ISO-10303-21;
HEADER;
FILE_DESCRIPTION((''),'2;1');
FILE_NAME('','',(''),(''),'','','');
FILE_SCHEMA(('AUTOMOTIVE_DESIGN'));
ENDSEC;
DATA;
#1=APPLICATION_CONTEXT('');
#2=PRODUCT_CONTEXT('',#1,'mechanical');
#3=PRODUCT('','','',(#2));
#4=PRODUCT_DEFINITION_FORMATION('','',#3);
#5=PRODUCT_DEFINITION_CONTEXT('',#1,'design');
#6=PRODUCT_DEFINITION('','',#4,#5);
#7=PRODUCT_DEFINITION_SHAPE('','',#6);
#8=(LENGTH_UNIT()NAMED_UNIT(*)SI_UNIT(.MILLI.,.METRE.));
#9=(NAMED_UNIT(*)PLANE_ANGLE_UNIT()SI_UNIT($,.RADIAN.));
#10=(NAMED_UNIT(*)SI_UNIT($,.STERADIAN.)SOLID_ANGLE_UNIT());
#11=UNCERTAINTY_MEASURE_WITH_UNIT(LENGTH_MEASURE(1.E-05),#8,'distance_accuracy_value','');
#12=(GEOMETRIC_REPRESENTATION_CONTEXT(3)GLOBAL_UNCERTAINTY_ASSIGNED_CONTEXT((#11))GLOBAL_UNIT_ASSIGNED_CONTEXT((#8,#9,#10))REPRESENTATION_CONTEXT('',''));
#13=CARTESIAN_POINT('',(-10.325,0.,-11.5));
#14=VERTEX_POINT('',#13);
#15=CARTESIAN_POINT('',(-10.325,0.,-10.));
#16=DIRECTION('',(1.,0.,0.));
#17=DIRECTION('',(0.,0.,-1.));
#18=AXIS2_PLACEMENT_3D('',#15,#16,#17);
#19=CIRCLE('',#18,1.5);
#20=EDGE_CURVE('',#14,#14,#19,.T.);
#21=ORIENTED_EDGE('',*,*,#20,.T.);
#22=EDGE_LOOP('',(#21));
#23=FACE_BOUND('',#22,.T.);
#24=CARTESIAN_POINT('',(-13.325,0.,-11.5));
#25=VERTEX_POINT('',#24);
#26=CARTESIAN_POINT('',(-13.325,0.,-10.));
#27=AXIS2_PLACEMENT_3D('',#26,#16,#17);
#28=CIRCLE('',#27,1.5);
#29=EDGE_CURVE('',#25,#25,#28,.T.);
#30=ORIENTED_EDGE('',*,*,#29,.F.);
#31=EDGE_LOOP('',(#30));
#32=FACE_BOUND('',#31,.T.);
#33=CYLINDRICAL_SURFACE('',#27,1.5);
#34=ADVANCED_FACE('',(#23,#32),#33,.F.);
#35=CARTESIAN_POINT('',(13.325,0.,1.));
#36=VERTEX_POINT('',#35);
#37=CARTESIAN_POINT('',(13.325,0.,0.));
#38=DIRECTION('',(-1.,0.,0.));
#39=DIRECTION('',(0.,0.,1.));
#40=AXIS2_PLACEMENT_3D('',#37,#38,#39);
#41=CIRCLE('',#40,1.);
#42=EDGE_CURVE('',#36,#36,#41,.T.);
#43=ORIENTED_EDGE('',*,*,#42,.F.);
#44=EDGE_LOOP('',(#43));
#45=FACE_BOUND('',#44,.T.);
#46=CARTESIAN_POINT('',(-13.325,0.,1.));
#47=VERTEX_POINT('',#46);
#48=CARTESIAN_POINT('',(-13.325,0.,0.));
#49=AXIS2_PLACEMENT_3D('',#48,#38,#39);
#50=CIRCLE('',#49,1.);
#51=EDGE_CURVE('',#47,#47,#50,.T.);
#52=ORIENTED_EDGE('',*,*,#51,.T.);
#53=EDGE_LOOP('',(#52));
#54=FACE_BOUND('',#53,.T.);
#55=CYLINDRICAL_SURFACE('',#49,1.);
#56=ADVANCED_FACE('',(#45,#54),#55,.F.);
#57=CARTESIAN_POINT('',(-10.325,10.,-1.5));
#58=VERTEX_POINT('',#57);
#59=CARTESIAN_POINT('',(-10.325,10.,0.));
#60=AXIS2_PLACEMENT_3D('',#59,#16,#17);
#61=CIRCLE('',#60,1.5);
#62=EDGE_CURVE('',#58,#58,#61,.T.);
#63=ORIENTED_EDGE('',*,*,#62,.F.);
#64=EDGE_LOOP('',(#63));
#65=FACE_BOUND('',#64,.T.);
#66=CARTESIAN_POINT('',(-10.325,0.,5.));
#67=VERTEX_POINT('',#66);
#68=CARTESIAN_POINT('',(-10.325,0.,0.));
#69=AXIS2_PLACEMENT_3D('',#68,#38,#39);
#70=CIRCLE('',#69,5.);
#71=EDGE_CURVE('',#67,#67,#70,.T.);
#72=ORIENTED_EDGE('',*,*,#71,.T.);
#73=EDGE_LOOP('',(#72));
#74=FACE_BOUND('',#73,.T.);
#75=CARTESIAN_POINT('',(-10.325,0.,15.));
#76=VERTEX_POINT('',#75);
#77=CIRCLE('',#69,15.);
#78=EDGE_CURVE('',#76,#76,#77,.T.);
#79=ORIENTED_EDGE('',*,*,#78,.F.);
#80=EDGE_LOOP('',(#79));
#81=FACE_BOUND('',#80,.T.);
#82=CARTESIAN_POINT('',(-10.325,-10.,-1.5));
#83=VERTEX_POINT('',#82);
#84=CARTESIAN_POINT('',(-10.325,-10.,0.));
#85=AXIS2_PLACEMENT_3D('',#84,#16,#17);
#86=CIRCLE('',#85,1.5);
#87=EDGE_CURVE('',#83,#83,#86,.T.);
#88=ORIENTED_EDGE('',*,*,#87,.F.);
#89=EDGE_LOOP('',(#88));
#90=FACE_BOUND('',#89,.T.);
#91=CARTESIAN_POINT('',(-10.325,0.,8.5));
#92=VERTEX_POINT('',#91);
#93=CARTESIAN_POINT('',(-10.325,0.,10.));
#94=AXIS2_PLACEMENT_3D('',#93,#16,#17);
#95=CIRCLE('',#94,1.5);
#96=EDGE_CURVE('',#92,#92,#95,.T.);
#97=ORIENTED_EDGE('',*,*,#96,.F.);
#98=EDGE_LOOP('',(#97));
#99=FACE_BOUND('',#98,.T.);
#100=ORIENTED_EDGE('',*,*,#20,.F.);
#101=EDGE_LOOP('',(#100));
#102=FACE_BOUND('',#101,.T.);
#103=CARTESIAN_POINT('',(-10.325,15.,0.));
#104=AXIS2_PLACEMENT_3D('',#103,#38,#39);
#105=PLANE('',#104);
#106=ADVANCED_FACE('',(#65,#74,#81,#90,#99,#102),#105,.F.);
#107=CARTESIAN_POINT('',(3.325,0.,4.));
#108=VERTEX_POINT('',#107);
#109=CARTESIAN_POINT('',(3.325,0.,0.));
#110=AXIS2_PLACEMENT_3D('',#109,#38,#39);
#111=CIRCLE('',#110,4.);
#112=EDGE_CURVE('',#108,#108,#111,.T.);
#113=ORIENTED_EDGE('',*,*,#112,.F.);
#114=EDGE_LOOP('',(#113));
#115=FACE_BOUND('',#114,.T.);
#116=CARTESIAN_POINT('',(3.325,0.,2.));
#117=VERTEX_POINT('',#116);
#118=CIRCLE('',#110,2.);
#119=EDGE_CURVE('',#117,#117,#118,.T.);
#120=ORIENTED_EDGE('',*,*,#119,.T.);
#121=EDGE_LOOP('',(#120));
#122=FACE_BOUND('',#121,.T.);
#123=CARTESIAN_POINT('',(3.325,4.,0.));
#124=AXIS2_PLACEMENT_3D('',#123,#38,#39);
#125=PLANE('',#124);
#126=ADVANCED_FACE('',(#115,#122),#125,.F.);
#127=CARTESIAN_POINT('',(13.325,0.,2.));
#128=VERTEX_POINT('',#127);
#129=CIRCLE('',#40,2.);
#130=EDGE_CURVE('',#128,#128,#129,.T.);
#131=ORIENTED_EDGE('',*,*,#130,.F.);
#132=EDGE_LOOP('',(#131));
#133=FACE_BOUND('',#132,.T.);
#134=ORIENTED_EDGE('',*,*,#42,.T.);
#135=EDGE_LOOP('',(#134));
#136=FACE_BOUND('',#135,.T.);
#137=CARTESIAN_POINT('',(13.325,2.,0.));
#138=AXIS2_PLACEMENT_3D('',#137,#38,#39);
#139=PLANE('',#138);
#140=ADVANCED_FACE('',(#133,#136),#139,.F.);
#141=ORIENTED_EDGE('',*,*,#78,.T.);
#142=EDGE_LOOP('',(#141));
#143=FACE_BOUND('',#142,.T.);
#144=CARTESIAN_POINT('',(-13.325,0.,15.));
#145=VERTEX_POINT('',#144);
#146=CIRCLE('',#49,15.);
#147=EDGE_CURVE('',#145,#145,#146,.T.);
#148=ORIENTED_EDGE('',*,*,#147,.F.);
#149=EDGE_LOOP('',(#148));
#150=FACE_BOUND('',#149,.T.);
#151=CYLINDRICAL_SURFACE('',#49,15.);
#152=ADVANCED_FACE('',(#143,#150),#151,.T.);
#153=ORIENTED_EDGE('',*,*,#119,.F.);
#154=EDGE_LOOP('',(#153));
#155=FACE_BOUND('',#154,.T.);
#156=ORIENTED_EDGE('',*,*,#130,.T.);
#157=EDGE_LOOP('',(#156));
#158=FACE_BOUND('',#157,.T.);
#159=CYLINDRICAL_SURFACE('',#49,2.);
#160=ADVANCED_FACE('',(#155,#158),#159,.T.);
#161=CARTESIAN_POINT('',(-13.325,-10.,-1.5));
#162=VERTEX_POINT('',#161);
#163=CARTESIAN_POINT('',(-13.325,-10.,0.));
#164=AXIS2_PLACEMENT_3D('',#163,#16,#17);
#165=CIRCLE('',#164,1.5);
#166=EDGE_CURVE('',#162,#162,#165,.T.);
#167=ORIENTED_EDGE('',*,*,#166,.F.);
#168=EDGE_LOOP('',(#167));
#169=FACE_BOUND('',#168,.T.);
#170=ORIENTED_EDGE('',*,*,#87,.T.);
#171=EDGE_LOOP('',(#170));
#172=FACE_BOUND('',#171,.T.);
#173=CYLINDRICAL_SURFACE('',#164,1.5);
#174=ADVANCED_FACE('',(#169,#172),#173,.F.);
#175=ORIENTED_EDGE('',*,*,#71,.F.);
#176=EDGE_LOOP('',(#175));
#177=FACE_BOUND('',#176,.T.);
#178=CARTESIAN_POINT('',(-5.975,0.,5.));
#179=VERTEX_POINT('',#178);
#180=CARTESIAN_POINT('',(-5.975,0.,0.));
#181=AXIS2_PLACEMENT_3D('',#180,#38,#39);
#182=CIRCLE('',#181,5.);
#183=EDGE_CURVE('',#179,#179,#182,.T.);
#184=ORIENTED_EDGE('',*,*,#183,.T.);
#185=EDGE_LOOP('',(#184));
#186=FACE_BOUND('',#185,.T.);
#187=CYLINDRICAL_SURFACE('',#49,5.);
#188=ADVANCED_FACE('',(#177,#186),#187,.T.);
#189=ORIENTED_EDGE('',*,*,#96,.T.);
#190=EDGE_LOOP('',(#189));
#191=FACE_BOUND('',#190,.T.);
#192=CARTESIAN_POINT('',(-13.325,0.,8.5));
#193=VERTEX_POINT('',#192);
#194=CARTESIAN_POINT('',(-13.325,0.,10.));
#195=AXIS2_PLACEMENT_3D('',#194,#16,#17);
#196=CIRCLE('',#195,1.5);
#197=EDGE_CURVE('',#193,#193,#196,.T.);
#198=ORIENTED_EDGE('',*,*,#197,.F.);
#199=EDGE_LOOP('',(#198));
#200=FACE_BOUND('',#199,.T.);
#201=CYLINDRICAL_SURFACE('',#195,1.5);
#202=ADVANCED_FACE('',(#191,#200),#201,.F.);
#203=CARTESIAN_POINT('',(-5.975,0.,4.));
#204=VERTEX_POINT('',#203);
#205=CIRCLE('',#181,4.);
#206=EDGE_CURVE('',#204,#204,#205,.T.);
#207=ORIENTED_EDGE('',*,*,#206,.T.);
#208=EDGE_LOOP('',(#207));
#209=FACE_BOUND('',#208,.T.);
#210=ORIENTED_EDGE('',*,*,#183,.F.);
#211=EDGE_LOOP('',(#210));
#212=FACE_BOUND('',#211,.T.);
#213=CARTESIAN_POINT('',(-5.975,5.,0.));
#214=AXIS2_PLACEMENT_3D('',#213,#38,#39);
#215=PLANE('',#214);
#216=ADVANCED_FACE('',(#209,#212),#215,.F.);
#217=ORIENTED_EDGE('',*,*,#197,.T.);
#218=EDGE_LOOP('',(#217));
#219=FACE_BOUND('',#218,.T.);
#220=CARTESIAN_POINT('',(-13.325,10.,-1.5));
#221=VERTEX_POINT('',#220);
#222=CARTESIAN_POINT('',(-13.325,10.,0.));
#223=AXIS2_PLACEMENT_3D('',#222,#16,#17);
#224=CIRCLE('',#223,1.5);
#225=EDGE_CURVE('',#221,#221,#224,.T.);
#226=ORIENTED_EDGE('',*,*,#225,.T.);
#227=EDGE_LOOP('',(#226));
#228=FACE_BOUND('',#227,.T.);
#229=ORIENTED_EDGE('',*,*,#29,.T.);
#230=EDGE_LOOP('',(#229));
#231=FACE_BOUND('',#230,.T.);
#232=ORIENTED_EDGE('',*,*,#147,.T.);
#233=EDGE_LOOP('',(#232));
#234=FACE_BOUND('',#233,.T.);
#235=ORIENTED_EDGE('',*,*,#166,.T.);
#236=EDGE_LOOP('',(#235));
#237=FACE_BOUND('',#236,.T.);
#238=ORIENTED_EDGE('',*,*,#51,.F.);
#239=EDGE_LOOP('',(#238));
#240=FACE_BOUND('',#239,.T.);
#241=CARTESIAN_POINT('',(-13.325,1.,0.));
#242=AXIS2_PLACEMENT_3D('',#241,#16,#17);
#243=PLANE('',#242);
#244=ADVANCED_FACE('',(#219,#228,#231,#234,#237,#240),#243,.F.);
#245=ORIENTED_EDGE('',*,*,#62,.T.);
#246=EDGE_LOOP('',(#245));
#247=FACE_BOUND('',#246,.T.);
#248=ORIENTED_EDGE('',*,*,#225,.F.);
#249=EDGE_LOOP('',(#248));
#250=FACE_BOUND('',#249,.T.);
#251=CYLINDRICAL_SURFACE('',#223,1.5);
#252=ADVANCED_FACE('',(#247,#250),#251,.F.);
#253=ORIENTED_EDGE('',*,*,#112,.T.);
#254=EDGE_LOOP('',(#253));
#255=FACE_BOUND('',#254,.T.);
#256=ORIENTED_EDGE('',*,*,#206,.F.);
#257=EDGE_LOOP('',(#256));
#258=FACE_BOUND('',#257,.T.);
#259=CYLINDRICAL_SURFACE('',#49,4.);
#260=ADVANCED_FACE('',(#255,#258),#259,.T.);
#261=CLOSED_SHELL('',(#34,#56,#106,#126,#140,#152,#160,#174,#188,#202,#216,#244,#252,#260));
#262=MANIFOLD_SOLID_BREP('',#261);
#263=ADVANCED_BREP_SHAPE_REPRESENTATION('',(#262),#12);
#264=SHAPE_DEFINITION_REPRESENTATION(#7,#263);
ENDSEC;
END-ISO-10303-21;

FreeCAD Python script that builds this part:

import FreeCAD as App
import Part
import Sketcher
Q = App.Units.Quantity


def add_polygon(sketch, points):
    """Adds a closed chain of lines whose ends are joined by coincident constraints."""
    first, n = sketch.GeometryCount, len(points)
    for a, b in zip(points, points[1:] + points[:1]):
        sketch.addGeometry(Part.LineSegment(App.Vector(*a, 0), App.Vector(*b, 0)), False)
    for i in range(n):
        sketch.addConstraint(Sketcher.Constraint("Coincident", first + i, 2, first + (i + 1) % n, 1))

doc = App.newDocument("Part")
body = doc.addObject("PartDesign::Body", "Body")

sketch1 = body.newObject("Sketcher::SketchObject", "Sketch")
sketch1.AttachmentSupport = (doc.getObject("XY_Plane"), [""])
sketch1.MapMode = "FlatFace"
add_polygon(sketch1, [(-13.3, 15), (-13.3, 1), (13.3, 1), (13.3, 2), (3.3, 2), (3.3, 4), (-6, 4), (-6, 5), (-10.3, 5), (-10.3, 15)])
sketch1.addConstraint(Sketcher.Constraint("Vertical", 0))
sketch1.addConstraint(Sketcher.Constraint("Horizontal", 1))
sketch1.addConstraint(Sketcher.Constraint("Vertical", 2))
sketch1.addConstraint(Sketcher.Constraint("Horizontal", 3))
sketch1.addConstraint(Sketcher.Constraint("Vertical", 4))
sketch1.addConstraint(Sketcher.Constraint("Horizontal", 5))
sketch1.addConstraint(Sketcher.Constraint("Vertical", 6))
sketch1.addConstraint(Sketcher.Constraint("Horizontal", 7))
sketch1.addConstraint(Sketcher.Constraint("Vertical", 8))
sketch1.addConstraint(Sketcher.Constraint("Horizontal", 9))
sketch1.addConstraint(Sketcher.Constraint("Equal", 2, 6))
sketch1.addConstraint(Sketcher.Constraint("Equal", 3, 8))
sketch1.addConstraint(Sketcher.Constraint("DistanceX", 3, 2, 3, 1, Q("10 mm")))
sketch1.addConstraint(Sketcher.Constraint("DistanceX", 9, 2, 9, 1, Q("3 mm")))
sketch1.addConstraint(Sketcher.Constraint("DistanceY", 0, 2, 0, 1, Q("14 mm")))
sketch1.addConstraint(Sketcher.Constraint("DistanceY", 2, 1, 2, 2, Q("1 mm")))
sketch1.addConstraint(Sketcher.Constraint("DistanceX", 5, 2, 5, 1, Q("9.3 mm")))
sketch1.addConstraint(Sketcher.Constraint("DistanceY", -1, 1, 0, 2, Q("1 mm")))
sketch1.addConstraint(Sketcher.Constraint("DistanceX", 1, 1, 1, 2, Q("26.65 mm")))
sketch1.addConstraint(Sketcher.Constraint("DistanceX", 0, 2, -1, 1, Q("13.325 mm")))
revolution = body.newObject("PartDesign::Revolution", "Revolution")
revolution.Profile = sketch1
revolution.ReferenceAxis = (sketch1, ["H_Axis"])
revolution.Angle = 360

sketch2 = body.newObject("Sketcher::SketchObject", "Sketch001")
sketch2.AttachmentSupport = (doc.getObject("YZ_Plane"), [""])
sketch2.MapMode = "FlatFace"
sketch2.AttachmentOffset = App.Placement(App.Vector(0, 0, -10.325), App.Rotation())
sketch2.addGeometry(Part.Circle(App.Vector(10, 0, 0), App.Vector(0, 0, 1), 1.5), False)
sketch2.addGeometry(Part.Circle(App.Vector(0, -10, 0), App.Vector(0, 0, 1), 1.5), False)
sketch2.addGeometry(Part.Circle(App.Vector(-10, 0, 0), App.Vector(0, 0, 1), 1.5), False)
sketch2.addGeometry(Part.Circle(App.Vector(0, 10, 0), App.Vector(0, 0, 1), 1.5), False)
sketch2.addConstraint(Sketcher.Constraint("Equal", 0, 1))
sketch2.addConstraint(Sketcher.Constraint("Equal", 1, 2))
sketch2.addConstraint(Sketcher.Constraint("Equal", 2, 3))
sketch2.addConstraint(Sketcher.Constraint("Symmetric", 0, 3, 2, 3, -1, 1))
sketch2.addConstraint(Sketcher.Constraint("Symmetric", 1, 3, 3, 3, -1, 1))
sketch2.addConstraint(Sketcher.Constraint("PointOnObject", 0, 3, -1))
sketch2.addConstraint(Sketcher.Constraint("PointOnObject", 1, 3, -2))
sketch2.addConstraint(Sketcher.Constraint("Diameter", 0, Q("3 mm")))
sketch2.addConstraint(Sketcher.Constraint("DistanceX", -1, 1, 0, 3, Q("10 mm")))
sketch2.addConstraint(Sketcher.Constraint("DistanceY", 1, 3, -1, 1, Q("10 mm")))
pocket1 = body.newObject("PartDesign::Pocket", "Pocket")
pocket1.Profile = sketch2
pocket1.Type = "ThroughAll"

doc.recompute()
